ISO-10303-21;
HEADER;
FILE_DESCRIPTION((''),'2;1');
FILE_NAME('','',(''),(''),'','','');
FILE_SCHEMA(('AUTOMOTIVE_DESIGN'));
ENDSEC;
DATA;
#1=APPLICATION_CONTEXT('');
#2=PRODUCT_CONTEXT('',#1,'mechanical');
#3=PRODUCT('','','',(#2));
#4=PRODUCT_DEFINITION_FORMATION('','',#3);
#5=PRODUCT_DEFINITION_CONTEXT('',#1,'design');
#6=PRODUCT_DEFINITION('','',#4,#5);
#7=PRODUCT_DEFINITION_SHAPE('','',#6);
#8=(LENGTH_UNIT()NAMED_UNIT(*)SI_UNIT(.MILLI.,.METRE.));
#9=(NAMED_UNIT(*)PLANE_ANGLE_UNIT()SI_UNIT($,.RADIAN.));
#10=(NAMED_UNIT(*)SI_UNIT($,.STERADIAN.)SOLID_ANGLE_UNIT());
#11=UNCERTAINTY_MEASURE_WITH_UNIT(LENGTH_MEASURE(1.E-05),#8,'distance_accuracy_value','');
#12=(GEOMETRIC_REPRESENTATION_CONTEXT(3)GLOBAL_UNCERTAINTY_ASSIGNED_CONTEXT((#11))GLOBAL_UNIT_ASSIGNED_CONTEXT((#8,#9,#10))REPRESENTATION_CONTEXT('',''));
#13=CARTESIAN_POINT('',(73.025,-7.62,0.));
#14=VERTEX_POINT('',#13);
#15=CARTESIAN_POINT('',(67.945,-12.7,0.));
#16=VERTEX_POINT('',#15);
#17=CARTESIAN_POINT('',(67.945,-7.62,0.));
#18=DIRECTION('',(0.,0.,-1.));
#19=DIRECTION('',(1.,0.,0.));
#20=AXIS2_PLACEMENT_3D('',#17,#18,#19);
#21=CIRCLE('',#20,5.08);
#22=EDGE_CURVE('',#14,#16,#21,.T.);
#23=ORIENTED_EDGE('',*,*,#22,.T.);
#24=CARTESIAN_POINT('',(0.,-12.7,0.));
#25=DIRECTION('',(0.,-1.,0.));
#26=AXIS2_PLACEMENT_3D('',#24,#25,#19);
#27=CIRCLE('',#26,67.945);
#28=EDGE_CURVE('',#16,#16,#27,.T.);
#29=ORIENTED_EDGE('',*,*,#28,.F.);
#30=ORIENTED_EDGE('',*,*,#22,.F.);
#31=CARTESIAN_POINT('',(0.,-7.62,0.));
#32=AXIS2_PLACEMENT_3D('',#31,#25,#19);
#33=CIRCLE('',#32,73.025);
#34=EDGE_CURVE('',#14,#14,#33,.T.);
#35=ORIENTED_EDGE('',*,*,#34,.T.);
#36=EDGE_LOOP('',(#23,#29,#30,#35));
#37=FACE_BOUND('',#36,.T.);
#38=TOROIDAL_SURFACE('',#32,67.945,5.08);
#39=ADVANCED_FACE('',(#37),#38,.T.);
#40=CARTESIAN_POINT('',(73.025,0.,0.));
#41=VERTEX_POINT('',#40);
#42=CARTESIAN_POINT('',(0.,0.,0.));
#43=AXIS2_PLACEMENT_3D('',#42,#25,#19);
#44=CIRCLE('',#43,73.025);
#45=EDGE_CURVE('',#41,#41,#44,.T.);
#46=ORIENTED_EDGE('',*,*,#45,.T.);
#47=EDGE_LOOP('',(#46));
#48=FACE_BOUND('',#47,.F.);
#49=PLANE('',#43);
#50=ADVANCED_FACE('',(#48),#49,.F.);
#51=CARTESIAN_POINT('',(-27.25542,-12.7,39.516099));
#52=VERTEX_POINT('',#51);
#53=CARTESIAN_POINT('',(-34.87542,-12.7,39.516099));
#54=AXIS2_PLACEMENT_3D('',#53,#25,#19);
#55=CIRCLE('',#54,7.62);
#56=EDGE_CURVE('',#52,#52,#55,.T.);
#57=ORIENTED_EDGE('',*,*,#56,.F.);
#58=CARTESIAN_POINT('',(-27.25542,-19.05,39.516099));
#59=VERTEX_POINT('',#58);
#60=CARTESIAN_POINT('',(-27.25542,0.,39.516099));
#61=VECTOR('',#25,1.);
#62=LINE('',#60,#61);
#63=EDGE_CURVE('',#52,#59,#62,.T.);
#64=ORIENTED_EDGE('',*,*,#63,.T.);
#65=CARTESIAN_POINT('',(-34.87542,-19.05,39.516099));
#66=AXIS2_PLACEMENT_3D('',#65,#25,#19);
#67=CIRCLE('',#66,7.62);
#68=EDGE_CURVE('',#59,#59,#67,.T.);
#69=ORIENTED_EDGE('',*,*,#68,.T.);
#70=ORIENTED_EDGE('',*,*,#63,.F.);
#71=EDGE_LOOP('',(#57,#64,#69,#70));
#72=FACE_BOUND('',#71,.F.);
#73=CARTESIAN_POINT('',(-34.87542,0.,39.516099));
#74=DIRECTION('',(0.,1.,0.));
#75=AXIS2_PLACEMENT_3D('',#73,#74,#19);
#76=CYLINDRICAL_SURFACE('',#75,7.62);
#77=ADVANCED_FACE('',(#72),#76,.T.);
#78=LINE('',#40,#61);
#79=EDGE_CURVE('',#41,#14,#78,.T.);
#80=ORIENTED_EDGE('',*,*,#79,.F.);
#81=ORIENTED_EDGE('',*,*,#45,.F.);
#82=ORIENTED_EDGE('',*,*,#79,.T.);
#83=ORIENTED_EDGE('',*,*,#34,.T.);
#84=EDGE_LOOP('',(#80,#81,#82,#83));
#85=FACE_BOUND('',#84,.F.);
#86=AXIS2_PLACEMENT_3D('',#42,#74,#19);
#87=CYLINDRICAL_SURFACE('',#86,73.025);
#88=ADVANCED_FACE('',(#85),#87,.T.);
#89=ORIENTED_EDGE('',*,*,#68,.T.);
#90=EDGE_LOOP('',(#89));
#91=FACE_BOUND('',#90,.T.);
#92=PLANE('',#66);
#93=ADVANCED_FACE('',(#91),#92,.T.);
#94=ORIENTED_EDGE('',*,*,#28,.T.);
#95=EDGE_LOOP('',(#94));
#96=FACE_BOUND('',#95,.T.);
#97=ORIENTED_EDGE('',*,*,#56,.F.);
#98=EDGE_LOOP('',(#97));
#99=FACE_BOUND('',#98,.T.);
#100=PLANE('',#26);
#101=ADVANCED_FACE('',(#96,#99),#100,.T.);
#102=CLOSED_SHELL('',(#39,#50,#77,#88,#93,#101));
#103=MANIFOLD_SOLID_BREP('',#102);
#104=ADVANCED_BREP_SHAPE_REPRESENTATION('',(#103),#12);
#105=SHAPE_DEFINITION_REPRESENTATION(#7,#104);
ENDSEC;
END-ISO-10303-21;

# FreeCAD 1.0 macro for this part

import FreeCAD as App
import Part
import Sketcher
from FreeCAD import Vector
Q = App.Units.Quantity


def edges_at(feature, points):
    """Names of the edges that pass closest to the given points."""
    edges = feature.Shape.Edges
    near = lambda p: min(range(len(edges)), key=lambda i: edges[i].distToShape(Part.Vertex(*p))[0])
    return sorted({f"Edge{near(p) + 1}" for p in points})

doc = App.newDocument("Part")
body = doc.addObject("PartDesign::Body", "Body")

# Sketch on XZ plane
sketch1 = body.newObject("Sketcher::SketchObject", "Sketch")
sketch1.AttachmentSupport = (doc.getObject("XZ_Plane"), [""])
sketch1.MapMode = "FlatFace"
sketch1.addGeometry(Part.Circle(Vector(0, 0, 0), Vector(0, 0, 1), 73.025), False)
sketch1.addGeometry(Part.Circle(Vector(-34.87542, 39.516099, 0), Vector(0, 0, 1), 7.62), False)
sketch1.addConstraint(Sketcher.Constraint("Coincident", 0, 3, -1, 1))
sketch1.addConstraint(Sketcher.Constraint("Diameter", 1, Q("0.6 in")))
sketch1.addConstraint(Sketcher.Constraint("Diameter", 0, Q("5.75 in")))
sketch1.addConstraint(Sketcher.Constraint("DistanceY", -1, 1, 1, 3, 39.516099))
sketch1.addConstraint(Sketcher.Constraint("DistanceX", 1, 3, -1, 1, 34.87542))
pad1 = body.newObject("PartDesign::Pad", "Pad")
pad1.Profile = sketch1
pad1.Length = Q("0.5 in")
doc.recompute()

fillet = body.newObject("PartDesign::Fillet", "Fillet")
fillet.Base = (pad1, edges_at(pad1, [(-73.025, -12.7, 0)]))
fillet.Radius = Q("0.2 in")

# Sketch on XZ plane
sketch2 = body.newObject("Sketcher::SketchObject", "Sketch001")
sketch2.AttachmentSupport = (doc.getObject("XZ_Plane"), [""])
sketch2.MapMode = "FlatFace"
sketch2.addGeometry(Part.Circle(Vector(-34.87542, 39.516099, 0), Vector(0, 0, 1), 7.62), False)
sketch2.addConstraint(Sketcher.Constraint("Diameter", 0, Q("0.6 in")))
sketch2.addConstraint(Sketcher.Constraint("DistanceY", -1, 1, 0, 3, 39.516099))
sketch2.addConstraint(Sketcher.Constraint("DistanceX", 0, 3, -1, 1, 34.87542))
pad2 = body.newObject("PartDesign::Pad", "Pad001")
pad2.Profile = sketch2
pad2.Length = Q("0.75 in")

doc.recompute()
